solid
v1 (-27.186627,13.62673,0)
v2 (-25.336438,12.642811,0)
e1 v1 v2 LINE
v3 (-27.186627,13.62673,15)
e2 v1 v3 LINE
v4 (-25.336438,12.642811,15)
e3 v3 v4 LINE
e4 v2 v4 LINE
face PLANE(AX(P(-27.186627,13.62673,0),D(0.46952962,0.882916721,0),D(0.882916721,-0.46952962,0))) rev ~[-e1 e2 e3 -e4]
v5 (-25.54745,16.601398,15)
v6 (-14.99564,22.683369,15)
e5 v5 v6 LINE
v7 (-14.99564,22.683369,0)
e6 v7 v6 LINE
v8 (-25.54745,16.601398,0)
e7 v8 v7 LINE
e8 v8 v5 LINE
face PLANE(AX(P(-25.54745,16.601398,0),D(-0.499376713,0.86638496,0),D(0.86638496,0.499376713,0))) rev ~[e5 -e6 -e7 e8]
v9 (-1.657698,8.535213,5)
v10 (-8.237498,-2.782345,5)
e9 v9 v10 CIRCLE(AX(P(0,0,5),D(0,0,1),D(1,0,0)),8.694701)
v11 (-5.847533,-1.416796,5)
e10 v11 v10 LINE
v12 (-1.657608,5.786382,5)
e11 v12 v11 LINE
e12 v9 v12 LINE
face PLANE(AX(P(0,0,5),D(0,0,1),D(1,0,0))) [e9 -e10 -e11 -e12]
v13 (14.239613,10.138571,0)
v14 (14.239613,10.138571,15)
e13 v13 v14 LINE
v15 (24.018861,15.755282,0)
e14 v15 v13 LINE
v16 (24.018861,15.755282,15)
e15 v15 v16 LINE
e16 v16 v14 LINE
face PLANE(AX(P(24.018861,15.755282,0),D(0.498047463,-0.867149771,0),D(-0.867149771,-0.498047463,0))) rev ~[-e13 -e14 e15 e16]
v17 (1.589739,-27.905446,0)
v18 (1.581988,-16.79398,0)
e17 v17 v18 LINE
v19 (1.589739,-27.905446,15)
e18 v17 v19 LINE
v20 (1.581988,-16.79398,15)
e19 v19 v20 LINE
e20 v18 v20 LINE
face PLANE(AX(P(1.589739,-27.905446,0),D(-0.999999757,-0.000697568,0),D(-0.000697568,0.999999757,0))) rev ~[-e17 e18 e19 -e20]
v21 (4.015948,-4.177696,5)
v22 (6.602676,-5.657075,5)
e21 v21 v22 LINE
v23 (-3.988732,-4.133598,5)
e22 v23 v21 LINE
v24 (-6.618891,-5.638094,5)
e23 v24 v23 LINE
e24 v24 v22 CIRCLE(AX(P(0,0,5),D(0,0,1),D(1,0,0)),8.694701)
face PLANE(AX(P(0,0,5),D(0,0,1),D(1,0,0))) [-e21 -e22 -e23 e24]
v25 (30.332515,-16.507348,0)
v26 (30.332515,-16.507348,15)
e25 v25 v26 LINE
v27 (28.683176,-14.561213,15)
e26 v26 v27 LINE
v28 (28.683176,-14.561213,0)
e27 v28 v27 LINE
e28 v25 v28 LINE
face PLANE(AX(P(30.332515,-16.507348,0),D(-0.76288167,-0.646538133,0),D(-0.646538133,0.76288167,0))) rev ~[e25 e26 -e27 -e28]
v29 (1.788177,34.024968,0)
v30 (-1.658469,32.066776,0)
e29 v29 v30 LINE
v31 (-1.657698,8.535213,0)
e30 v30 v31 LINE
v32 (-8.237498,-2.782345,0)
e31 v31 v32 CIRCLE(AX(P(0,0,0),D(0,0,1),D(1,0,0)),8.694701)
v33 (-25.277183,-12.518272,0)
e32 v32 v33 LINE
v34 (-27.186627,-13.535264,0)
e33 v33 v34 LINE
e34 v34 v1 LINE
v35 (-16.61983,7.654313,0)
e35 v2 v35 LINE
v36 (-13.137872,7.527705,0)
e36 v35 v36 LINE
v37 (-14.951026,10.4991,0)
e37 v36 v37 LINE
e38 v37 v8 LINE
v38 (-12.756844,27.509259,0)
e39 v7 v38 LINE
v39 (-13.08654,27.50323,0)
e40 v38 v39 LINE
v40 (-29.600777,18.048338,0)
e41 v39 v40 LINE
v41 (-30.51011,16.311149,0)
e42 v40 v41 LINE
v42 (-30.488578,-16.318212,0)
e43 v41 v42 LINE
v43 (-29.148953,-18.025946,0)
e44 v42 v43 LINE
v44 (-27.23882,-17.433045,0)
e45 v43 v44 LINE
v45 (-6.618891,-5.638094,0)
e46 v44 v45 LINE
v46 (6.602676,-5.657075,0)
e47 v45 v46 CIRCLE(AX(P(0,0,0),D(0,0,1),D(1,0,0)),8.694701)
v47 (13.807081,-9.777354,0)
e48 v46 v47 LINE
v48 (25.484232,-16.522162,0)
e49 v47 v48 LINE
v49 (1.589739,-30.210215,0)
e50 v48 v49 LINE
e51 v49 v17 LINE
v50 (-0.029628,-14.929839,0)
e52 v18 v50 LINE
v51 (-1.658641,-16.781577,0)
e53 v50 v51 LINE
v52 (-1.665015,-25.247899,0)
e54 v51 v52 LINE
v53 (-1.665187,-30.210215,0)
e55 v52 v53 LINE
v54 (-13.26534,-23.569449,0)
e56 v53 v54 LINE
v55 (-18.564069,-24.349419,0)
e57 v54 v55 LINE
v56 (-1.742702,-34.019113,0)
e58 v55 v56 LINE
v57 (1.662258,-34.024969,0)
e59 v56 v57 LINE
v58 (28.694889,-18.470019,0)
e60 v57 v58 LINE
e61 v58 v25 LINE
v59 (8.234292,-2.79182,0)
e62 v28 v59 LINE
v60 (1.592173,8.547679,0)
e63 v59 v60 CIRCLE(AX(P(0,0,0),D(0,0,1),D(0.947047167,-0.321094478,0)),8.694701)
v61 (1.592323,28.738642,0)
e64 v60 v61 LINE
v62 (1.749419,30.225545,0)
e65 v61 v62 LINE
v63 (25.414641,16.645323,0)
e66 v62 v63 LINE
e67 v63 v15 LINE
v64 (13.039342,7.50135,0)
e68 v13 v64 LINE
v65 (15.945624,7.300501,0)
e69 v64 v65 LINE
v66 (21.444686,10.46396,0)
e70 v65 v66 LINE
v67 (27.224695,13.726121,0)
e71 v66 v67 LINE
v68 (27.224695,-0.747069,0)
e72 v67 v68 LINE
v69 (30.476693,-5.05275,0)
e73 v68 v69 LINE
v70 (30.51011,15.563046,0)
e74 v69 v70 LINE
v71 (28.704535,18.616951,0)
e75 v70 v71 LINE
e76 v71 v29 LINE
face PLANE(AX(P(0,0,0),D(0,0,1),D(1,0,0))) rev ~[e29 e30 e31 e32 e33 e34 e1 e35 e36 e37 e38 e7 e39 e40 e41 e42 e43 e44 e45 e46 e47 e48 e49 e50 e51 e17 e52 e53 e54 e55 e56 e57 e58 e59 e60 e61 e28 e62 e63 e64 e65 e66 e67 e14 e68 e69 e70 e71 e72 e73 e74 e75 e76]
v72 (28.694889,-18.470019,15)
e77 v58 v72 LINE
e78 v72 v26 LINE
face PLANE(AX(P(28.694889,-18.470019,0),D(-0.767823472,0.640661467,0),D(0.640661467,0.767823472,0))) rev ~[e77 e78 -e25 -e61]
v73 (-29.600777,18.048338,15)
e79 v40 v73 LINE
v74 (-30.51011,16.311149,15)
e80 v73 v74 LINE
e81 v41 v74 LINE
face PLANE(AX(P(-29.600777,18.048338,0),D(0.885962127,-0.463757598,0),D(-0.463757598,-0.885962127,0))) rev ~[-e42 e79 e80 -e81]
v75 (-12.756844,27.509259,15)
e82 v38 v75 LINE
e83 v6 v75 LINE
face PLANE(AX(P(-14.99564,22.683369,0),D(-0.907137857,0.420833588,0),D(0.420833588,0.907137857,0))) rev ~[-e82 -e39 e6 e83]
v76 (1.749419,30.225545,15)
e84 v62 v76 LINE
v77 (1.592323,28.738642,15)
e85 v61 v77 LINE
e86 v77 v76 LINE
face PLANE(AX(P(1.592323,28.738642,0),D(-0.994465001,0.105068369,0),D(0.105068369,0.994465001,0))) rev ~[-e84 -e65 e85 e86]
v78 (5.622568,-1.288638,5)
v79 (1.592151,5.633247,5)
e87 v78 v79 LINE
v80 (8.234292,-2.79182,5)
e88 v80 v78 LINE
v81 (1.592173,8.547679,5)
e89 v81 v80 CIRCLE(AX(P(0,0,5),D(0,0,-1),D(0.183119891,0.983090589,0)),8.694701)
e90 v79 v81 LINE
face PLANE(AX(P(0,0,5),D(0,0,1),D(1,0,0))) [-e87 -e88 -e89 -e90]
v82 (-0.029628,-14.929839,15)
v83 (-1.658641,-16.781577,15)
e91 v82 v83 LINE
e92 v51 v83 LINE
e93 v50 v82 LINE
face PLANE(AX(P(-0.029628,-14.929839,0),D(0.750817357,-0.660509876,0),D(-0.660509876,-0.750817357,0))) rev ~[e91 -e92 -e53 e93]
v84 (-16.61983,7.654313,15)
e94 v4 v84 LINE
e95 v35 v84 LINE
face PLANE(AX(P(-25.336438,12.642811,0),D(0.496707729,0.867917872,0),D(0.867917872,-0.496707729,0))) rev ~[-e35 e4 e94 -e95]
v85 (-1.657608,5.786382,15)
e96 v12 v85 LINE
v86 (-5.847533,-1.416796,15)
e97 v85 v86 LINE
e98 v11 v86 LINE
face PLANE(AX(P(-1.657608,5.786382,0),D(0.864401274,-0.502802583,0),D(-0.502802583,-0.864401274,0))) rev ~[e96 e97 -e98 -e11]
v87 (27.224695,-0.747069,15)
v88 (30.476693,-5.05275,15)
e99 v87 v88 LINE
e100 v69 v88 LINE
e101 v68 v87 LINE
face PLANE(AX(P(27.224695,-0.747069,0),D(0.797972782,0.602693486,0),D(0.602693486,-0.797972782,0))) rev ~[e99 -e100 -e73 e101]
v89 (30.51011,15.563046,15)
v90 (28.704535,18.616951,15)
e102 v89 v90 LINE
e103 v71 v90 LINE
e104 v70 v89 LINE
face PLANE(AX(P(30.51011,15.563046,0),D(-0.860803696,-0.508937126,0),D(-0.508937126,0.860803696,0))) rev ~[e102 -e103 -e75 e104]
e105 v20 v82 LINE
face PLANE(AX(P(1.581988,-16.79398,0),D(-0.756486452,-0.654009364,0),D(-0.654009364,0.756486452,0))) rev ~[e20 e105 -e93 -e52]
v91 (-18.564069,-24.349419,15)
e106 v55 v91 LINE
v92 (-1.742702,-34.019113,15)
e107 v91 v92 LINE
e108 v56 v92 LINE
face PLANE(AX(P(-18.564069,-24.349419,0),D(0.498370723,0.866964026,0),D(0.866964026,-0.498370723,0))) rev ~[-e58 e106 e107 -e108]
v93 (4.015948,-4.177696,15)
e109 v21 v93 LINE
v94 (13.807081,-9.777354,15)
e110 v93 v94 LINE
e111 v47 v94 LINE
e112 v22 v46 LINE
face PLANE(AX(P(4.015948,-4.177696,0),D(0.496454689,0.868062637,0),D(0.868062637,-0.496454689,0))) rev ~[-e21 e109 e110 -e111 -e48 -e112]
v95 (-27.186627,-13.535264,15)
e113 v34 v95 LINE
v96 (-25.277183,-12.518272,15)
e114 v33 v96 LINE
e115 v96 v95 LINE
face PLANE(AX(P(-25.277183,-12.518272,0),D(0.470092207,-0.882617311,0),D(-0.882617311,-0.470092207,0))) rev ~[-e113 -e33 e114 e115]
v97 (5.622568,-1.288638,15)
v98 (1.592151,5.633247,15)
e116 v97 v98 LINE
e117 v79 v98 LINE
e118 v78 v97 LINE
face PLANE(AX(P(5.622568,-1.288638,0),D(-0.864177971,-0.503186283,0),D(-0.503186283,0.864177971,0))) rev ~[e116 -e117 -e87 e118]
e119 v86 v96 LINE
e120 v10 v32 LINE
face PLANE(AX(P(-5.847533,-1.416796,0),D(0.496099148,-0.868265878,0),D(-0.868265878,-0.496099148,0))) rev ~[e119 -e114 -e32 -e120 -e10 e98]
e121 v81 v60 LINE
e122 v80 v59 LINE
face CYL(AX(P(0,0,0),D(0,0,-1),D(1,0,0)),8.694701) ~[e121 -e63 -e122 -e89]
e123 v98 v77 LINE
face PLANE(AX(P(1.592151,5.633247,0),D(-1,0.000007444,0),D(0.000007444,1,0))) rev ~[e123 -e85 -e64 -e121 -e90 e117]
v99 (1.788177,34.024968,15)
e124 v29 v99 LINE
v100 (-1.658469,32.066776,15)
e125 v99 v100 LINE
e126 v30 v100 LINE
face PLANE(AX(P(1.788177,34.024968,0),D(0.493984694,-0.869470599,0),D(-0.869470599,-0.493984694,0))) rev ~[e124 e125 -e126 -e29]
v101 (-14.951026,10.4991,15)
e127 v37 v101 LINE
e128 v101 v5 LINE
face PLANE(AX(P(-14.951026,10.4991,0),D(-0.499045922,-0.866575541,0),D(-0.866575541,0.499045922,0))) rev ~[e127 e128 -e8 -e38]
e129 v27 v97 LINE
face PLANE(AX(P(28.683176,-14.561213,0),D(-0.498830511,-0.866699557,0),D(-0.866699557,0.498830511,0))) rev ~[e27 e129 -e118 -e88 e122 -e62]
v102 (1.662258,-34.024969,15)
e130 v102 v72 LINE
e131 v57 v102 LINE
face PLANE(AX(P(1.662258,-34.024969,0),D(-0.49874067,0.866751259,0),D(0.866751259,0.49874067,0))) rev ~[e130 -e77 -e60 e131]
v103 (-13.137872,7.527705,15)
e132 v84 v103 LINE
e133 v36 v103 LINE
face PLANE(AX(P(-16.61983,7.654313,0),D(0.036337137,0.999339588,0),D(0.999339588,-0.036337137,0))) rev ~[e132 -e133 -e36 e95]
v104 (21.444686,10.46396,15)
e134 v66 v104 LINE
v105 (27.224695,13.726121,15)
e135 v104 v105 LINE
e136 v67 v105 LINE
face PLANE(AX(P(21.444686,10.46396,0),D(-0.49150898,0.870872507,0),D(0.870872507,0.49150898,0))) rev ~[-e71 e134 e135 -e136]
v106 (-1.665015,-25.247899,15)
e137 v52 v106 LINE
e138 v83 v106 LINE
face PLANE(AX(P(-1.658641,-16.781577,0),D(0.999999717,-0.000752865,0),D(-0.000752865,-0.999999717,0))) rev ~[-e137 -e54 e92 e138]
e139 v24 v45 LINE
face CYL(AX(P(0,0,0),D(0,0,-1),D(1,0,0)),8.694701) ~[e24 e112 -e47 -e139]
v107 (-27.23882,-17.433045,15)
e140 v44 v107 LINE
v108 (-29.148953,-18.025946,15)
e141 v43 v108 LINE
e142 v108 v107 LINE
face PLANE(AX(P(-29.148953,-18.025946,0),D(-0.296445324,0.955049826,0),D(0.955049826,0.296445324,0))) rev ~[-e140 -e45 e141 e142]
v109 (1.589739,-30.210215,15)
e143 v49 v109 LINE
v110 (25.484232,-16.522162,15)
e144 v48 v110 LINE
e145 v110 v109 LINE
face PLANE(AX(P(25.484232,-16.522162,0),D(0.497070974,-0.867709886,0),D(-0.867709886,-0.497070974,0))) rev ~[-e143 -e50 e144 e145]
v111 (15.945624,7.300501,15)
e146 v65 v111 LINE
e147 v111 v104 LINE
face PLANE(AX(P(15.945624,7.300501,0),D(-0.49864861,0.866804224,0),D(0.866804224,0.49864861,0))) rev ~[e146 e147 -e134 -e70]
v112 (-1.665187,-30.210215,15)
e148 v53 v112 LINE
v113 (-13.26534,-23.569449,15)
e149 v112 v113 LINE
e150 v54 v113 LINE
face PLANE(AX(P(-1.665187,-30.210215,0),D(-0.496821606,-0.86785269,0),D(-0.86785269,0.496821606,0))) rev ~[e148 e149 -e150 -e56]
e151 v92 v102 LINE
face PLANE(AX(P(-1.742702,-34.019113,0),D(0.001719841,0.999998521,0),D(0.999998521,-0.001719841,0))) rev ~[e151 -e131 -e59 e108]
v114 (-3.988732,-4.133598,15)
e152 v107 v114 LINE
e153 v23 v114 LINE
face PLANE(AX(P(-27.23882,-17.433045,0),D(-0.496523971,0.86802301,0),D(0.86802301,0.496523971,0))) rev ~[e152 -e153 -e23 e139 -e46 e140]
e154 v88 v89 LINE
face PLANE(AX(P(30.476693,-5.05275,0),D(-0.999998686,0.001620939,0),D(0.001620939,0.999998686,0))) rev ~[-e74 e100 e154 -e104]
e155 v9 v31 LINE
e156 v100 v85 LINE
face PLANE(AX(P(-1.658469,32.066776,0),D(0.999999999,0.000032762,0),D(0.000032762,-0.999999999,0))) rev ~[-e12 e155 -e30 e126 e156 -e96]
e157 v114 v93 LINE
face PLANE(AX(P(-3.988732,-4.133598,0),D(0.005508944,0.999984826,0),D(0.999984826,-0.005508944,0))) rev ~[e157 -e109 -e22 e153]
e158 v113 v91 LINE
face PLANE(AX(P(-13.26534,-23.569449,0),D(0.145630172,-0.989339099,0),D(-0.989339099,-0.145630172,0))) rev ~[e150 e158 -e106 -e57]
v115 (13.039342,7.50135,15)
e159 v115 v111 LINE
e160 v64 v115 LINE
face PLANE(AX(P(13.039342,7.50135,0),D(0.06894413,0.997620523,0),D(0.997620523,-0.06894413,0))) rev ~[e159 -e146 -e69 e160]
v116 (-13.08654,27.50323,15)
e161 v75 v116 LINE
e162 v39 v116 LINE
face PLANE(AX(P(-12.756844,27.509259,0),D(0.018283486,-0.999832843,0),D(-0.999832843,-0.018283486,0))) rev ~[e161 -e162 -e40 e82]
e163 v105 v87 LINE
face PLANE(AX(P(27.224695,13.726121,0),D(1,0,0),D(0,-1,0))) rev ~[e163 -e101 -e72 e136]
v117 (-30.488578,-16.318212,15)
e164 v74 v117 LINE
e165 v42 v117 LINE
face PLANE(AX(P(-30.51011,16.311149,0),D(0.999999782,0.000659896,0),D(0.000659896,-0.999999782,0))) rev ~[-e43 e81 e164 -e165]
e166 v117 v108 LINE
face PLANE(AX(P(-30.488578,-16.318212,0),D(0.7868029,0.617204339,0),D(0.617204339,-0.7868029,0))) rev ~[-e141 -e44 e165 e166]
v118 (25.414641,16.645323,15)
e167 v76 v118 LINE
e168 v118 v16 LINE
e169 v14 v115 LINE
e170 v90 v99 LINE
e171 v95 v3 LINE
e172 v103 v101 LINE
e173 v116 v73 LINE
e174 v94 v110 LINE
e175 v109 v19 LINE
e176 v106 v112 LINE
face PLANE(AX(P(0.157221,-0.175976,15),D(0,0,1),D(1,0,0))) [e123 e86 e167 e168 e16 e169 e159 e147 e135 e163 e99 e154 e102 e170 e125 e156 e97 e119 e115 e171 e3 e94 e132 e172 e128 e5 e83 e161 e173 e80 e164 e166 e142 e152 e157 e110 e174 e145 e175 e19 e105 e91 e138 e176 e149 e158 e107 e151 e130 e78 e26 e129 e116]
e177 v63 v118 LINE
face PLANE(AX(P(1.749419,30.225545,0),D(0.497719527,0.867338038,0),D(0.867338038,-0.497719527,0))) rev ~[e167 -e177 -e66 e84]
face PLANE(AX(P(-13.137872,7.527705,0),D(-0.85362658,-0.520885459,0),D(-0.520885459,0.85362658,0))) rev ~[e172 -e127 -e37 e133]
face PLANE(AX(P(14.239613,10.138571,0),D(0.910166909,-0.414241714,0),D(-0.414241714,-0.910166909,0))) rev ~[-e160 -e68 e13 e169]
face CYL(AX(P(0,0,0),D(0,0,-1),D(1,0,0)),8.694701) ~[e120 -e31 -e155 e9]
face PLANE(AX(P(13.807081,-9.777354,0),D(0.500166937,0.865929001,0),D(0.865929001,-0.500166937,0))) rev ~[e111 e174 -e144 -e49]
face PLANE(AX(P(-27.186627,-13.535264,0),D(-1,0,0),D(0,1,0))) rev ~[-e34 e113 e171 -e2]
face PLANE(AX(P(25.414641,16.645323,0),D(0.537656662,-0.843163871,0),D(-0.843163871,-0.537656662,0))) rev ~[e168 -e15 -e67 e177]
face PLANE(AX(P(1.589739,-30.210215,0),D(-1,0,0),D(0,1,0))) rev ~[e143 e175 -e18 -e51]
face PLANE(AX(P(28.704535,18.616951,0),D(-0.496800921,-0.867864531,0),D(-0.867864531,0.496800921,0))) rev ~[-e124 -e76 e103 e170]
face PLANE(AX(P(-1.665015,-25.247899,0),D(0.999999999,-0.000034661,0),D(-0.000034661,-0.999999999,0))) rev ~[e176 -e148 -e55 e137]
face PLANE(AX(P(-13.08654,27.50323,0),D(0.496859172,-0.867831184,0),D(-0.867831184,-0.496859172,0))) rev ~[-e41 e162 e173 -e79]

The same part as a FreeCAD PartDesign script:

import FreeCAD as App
import Part
import Sketcher


def add_polygon(sketch, points):
    """Adds a closed chain of lines whose ends are joined by coincident constraints."""
    first, n = sketch.GeometryCount, len(points)
    for a, b in zip(points, points[1:] + points[:1]):
        sketch.addGeometry(Part.LineSegment(App.Vector(*a, 0), App.Vector(*b, 0)), False)
    for i in range(n):
        sketch.addConstraint(Sketcher.Constraint("Coincident", first + i, 2, first + (i + 1) % n, 1))

doc = App.newDocument("Part")
body = doc.addObject("PartDesign::Body", "Body")

# Sketch on XY plane
sketch1 = body.newObject("Sketcher::SketchObject", "Sketch")
sketch1.AttachmentSupport = (doc.getObject("XY_Plane"), [""])
sketch1.MapMode = "FlatFace"
add_polygon(sketch1, [(27.22, -0.75), (30.48, -5.05), (30.51, 15.56), (28.7, 18.62), (1.79, 34.02), (-1.66, 32.07), (-1.66, 5.79), (-5.85, -1.42), (-25.28, -12.52), (-27.19, -13.54), (-27.19, 13.63), (-25.34, 12.64), (-16.62, 7.65), (-13.14, 7.53), (-14.95, 10.5), (-25.55, 16.6), (-15, 22.68), (-12.76, 27.51), (-13.09, 27.5), (-29.6, 18.05), (-30.51, 16.31), (-30.49, -16.32), (-29.15, -18.03), (-27.24, -17.43), (-3.99, -4.13), (4.02, -4.18), (13.81, -9.78), (25.48, -16.52), (1.59, -30.21), (1.59, -27.91), (1.58, -16.79), (-0.03, -14.93), (-1.66, -16.78), (-1.67, -25.25), (-1.67, -30.21), (-13.27, -23.57), (-18.56, -24.35), (-1.74, -34.02), (1.66, -34.02), (28.69, -18.47), (30.33, -16.51), (28.68, -14.56), (5.62, -1.29), (1.59, 5.63), (1.59, 28.74), (1.75, 30.23), (25.41, 16.65), (24.02, 15.76), (14.24, 10.14), (13.04, 7.5), (15.95, 7.3), (21.44, 10.46), (27.22, 13.73)])  # lines 0-52
sketch1.addConstraint([
    Sketcher.Constraint("Vertical", 9),
    Sketcher.Constraint("Vertical", 28),
    Sketcher.Constraint("Vertical", 52),
    Sketcher.Constraint("Horizontal", 27, 2, 33, 2),
    Sketcher.Constraint("DistanceY", 7, 2, 9, 2, 26.145002),
    Sketcher.Constraint("DistanceX", 52, 2, 0, 2, 3.251998),
    Sketcher.Constraint("Distance", 24, 8.004801),
    Sketcher.Constraint("Distance", 34, 13.3665),
    Sketcher.Constraint("DistanceY", 28, 1, 28, 2, 2.304769),
    Sketcher.Constraint("DistanceY", 52, 2, 52, 1, 14.47319),
    Sketcher.Constraint("DistanceY", -1, 1, 13, 2, 10.4991),
    Sketcher.Constraint("DistanceY", 32, 2, -1, 1, 25.247899),
    Sketcher.Constraint("DistanceY", -1, 1, 49, 2, 7.300501),
    Sketcher.Constraint("DistanceY", 0, 2, 2, 2, 23.669701),
    Sketcher.Constraint("DistanceX", 5, 2, 0, 2, 32.134301),
    Sketcher.Constraint("DistanceY", 6, 2, 12, 2, 8.944501),
    Sketcher.Constraint("DistanceX", 9, 2, 13, 2, 12.235601),
    Sketcher.Constraint("DistanceX", 10, 2, 15, 2, 10.340798),
    Sketcher.Constraint("DistanceX", 15, 2, 17, 2, 1.9091),
    Sketcher.Constraint("DistanceY", 21, 2, 22, 2, 0.592901),
    Sketcher.Constraint("DistanceX", 6, 2, 23, 2, 1.858801),
    Sketcher.Constraint("DistanceY", 23, 2, 13, 2, 14.632698),
    Sketcher.Constraint("DistanceY", 24, 2, 6, 2, 2.7609),
    Sketcher.Constraint("DistanceX", 34, 2, 31, 2, 11.606699),
    Sketcher.Constraint("DistanceX", 29, 2, 38, 2, 27.112901),
    Sketcher.Constraint("DistanceY", 39, 2, 0, 2, 11.454598),
    Sketcher.Constraint("DistanceX", 23, 2, 41, 2, 9.6113),
    Sketcher.Constraint("Distance", 3, 31.014469),
    Sketcher.Constraint("Distance", 6, 8.333141),
    Sketcher.Constraint("Distance", 8, 2.163388),
    Sketcher.Constraint("Distance", 10, 2.095542),
    Sketcher.Constraint("Distance", 12, 3.484259),
    Sketcher.Constraint("Distance", 14, 12.227929),
    Sketcher.Constraint("Distance", 16, 5.319908),
    Sketcher.Constraint("Distance", 17, 0.329751),
    Sketcher.Constraint("Distance", 18, 19.02932),
    Sketcher.Constraint("Distance", 20, 32.629368),
    Sketcher.Constraint("Distance", 27, 27.537422),
    Sketcher.Constraint("Distance", 29, 11.111469),
    Sketcher.Constraint("Distance", 30, 2.464209),
    Sketcher.Constraint("Distance", 39, 2.556149),
    Sketcher.Constraint("Distance", 40, 2.551031),
    Sketcher.Constraint("Distance", 42, 8.009791),
    Sketcher.Constraint("Distance", 44, 1.495179),
    Sketcher.Constraint("Distance", 45, 27.284889),
    Sketcher.Constraint("Distance", 47, 11.277461),
    Sketcher.Constraint("DistanceY", 9, 1, 9, 2, 27.161994),
    Sketcher.Constraint("DistanceY", 0, 2, -1, 1, 5.05275),
    Sketcher.Constraint("DistanceX", -1, 1, 1, 2, 30.51011),
    Sketcher.Constraint("DistanceX", 4, 2, -1, 1, 1.658469),
    Sketcher.Constraint("DistanceY", -1, 1, 5, 2, 5.786382),
    Sketcher.Constraint("DistanceY", -1, 1, 9, 2, 13.62673),
    Sketcher.Constraint("DistanceX", 10, 2, -1, 1, 25.336438),
    Sketcher.Constraint("DistanceY", -1, 1, 10, 2, 12.642811),
    Sketcher.Constraint("DistanceX", 11, 2, -1, 1, 16.61983),
    Sketcher.Constraint("DistanceX", 14, 2, -1, 1, 25.54745),
    Sketcher.Constraint("DistanceY", -1, 1, 15, 2, 22.683369),
    Sketcher.Constraint("DistanceY", -1, 1, 16, 2, 27.509259),
    Sketcher.Constraint("DistanceY", -1, 1, 18, 2, 18.048338),
    Sketcher.Constraint("DistanceX", 19, 2, -1, 1, 30.51011),
    Sketcher.Constraint("DistanceY", -1, 1, 19, 2, 16.311149),
    Sketcher.Constraint("DistanceX", 20, 2, -1, 1, 30.488578),
    Sketcher.Constraint("DistanceX", 22, 2, -1, 1, 27.23882),
    Sketcher.Constraint("DistanceX", -1, 1, 25, 2, 13.807081),
    Sketcher.Constraint("DistanceX", -1, 1, 26, 2, 25.484232),
    Sketcher.Constraint("DistanceX", -1, 1, 27, 2, 1.589739),
    Sketcher.Constraint("DistanceY", 29, 2, -1, 1, 16.79398),
    Sketcher.Constraint("DistanceX", 30, 2, -1, 1, 0.029628),
    Sketcher.Constraint("DistanceY", 30, 2, -1, 1, 14.929839),
    Sketcher.Constraint("DistanceX", 31, 2, -1, 1, 1.658641),
    Sketcher.Constraint("DistanceY", 34, 2, -1, 1, 23.569449),
    Sketcher.Constraint("DistanceX", 35, 2, -1, 1, 18.564069),
    Sketcher.Constraint("DistanceY", 35, 2, -1, 1, 24.349419),
    Sketcher.Constraint("DistanceY", 37, 2, -1, 1, 34.024969),
    Sketcher.Constraint("DistanceY", 38, 2, -1, 1, 18.470019),
    Sketcher.Constraint("DistanceX", -1, 1, 41, 2, 5.622568),
    Sketcher.Constraint("DistanceX", -1, 1, 42, 2, 1.592151),
    Sketcher.Constraint("DistanceY", -1, 1, 43, 2, 28.738642),
    Sketcher.Constraint("DistanceX", -1, 1, 44, 2, 1.749419),
    Sketcher.Constraint("DistanceX", -1, 1, 45, 2, 25.414641),
    Sketcher.Constraint("DistanceX", -1, 1, 46, 2, 24.018861),
    Sketcher.Constraint("DistanceY", -1, 1, 46, 2, 15.755282),
    Sketcher.Constraint("DistanceY", -1, 1, 47, 2, 10.138571),
    Sketcher.Constraint("DistanceY", -1, 1, 48, 2, 7.50135),
    Sketcher.Constraint("DistanceY", -1, 1, 50, 2, 10.46396),
    Sketcher.Constraint("DistanceY", -1, 1, 51, 2, 13.726121),
    Sketcher.Constraint("DistanceX", 2, 2, 0, 2, 1.772158),
    Sketcher.Constraint("DistanceY", 0, 2, 3, 2, 39.077718),
    Sketcher.Constraint("DistanceY", 1, 2, 4, 2, 16.50373),
    Sketcher.Constraint("DistanceX", 4, 2, 5, 2, 0.000861),
    Sketcher.Constraint("DistanceY", 6, 2, 4, 2, 33.483572),
    Sketcher.Constraint("DistanceY", 6, 2, 11, 2, 9.071109),
    Sketcher.Constraint("DistanceX", 21, 2, 7, 2, 3.87177),
    Sketcher.Constraint("DistanceY", 21, 2, 11, 2, 25.680259),
    Sketcher.Constraint("DistanceY", 25, 2, 24, 2, 5.599658),
    Sketcher.Constraint("DistanceY", 28, 2, 31, 2, 11.123869),
    Sketcher.Constraint("DistanceX", 36, 2, 27, 2, 3.332441),
    Sketcher.Constraint("DistanceX", 36, 2, 37, 2, 3.40496),
    Sketcher.Constraint("DistanceX", 40, 2, 39, 2, 1.649339),
    Sketcher.Constraint("DistanceY", 24, 2, 41, 2, 2.889058),
    Sketcher.Constraint("DistanceX", 4, 2, 43, 2, 3.250792),
    Sketcher.Constraint("DistanceX", 48, 2, 47, 2, 1.200271),
    Sketcher.Constraint("DistanceX", 47, 2, 49, 2, 1.706011),
    Sketcher.Constraint("DistanceX", 50, 2, 51, 2, 5.780009),
    Sketcher.Constraint("Distance", 36, 19.402612),
    Sketcher.Constraint("DistanceX", 32, 2, -1, 1, 1.665015),
])
pad1 = body.newObject("PartDesign::Pad", "Pad")
pad1.Profile = sketch1
pad1.Length = 15

# Sketch on XY plane
sketch2 = body.newObject("Sketcher::SketchObject", "Sketch001")
sketch2.AttachmentSupport = (doc.getObject("XY_Plane"), [""])
sketch2.MapMode = "FlatFace"
sketch2.addGeometry(Part.Circle(App.Vector(0, 0, 0), App.Vector(0, 0, 1), 9), False)
sketch2.addConstraint([
    Sketcher.Constraint("Coincident", 0, 3, -1, 1),
    Sketcher.Constraint("Diameter", 0, 17.389402),
])
pad2 = body.newObject("PartDesign::Pad", "Pad001")
pad2.Profile = sketch2
pad2.Length = 5

doc.recompute()
